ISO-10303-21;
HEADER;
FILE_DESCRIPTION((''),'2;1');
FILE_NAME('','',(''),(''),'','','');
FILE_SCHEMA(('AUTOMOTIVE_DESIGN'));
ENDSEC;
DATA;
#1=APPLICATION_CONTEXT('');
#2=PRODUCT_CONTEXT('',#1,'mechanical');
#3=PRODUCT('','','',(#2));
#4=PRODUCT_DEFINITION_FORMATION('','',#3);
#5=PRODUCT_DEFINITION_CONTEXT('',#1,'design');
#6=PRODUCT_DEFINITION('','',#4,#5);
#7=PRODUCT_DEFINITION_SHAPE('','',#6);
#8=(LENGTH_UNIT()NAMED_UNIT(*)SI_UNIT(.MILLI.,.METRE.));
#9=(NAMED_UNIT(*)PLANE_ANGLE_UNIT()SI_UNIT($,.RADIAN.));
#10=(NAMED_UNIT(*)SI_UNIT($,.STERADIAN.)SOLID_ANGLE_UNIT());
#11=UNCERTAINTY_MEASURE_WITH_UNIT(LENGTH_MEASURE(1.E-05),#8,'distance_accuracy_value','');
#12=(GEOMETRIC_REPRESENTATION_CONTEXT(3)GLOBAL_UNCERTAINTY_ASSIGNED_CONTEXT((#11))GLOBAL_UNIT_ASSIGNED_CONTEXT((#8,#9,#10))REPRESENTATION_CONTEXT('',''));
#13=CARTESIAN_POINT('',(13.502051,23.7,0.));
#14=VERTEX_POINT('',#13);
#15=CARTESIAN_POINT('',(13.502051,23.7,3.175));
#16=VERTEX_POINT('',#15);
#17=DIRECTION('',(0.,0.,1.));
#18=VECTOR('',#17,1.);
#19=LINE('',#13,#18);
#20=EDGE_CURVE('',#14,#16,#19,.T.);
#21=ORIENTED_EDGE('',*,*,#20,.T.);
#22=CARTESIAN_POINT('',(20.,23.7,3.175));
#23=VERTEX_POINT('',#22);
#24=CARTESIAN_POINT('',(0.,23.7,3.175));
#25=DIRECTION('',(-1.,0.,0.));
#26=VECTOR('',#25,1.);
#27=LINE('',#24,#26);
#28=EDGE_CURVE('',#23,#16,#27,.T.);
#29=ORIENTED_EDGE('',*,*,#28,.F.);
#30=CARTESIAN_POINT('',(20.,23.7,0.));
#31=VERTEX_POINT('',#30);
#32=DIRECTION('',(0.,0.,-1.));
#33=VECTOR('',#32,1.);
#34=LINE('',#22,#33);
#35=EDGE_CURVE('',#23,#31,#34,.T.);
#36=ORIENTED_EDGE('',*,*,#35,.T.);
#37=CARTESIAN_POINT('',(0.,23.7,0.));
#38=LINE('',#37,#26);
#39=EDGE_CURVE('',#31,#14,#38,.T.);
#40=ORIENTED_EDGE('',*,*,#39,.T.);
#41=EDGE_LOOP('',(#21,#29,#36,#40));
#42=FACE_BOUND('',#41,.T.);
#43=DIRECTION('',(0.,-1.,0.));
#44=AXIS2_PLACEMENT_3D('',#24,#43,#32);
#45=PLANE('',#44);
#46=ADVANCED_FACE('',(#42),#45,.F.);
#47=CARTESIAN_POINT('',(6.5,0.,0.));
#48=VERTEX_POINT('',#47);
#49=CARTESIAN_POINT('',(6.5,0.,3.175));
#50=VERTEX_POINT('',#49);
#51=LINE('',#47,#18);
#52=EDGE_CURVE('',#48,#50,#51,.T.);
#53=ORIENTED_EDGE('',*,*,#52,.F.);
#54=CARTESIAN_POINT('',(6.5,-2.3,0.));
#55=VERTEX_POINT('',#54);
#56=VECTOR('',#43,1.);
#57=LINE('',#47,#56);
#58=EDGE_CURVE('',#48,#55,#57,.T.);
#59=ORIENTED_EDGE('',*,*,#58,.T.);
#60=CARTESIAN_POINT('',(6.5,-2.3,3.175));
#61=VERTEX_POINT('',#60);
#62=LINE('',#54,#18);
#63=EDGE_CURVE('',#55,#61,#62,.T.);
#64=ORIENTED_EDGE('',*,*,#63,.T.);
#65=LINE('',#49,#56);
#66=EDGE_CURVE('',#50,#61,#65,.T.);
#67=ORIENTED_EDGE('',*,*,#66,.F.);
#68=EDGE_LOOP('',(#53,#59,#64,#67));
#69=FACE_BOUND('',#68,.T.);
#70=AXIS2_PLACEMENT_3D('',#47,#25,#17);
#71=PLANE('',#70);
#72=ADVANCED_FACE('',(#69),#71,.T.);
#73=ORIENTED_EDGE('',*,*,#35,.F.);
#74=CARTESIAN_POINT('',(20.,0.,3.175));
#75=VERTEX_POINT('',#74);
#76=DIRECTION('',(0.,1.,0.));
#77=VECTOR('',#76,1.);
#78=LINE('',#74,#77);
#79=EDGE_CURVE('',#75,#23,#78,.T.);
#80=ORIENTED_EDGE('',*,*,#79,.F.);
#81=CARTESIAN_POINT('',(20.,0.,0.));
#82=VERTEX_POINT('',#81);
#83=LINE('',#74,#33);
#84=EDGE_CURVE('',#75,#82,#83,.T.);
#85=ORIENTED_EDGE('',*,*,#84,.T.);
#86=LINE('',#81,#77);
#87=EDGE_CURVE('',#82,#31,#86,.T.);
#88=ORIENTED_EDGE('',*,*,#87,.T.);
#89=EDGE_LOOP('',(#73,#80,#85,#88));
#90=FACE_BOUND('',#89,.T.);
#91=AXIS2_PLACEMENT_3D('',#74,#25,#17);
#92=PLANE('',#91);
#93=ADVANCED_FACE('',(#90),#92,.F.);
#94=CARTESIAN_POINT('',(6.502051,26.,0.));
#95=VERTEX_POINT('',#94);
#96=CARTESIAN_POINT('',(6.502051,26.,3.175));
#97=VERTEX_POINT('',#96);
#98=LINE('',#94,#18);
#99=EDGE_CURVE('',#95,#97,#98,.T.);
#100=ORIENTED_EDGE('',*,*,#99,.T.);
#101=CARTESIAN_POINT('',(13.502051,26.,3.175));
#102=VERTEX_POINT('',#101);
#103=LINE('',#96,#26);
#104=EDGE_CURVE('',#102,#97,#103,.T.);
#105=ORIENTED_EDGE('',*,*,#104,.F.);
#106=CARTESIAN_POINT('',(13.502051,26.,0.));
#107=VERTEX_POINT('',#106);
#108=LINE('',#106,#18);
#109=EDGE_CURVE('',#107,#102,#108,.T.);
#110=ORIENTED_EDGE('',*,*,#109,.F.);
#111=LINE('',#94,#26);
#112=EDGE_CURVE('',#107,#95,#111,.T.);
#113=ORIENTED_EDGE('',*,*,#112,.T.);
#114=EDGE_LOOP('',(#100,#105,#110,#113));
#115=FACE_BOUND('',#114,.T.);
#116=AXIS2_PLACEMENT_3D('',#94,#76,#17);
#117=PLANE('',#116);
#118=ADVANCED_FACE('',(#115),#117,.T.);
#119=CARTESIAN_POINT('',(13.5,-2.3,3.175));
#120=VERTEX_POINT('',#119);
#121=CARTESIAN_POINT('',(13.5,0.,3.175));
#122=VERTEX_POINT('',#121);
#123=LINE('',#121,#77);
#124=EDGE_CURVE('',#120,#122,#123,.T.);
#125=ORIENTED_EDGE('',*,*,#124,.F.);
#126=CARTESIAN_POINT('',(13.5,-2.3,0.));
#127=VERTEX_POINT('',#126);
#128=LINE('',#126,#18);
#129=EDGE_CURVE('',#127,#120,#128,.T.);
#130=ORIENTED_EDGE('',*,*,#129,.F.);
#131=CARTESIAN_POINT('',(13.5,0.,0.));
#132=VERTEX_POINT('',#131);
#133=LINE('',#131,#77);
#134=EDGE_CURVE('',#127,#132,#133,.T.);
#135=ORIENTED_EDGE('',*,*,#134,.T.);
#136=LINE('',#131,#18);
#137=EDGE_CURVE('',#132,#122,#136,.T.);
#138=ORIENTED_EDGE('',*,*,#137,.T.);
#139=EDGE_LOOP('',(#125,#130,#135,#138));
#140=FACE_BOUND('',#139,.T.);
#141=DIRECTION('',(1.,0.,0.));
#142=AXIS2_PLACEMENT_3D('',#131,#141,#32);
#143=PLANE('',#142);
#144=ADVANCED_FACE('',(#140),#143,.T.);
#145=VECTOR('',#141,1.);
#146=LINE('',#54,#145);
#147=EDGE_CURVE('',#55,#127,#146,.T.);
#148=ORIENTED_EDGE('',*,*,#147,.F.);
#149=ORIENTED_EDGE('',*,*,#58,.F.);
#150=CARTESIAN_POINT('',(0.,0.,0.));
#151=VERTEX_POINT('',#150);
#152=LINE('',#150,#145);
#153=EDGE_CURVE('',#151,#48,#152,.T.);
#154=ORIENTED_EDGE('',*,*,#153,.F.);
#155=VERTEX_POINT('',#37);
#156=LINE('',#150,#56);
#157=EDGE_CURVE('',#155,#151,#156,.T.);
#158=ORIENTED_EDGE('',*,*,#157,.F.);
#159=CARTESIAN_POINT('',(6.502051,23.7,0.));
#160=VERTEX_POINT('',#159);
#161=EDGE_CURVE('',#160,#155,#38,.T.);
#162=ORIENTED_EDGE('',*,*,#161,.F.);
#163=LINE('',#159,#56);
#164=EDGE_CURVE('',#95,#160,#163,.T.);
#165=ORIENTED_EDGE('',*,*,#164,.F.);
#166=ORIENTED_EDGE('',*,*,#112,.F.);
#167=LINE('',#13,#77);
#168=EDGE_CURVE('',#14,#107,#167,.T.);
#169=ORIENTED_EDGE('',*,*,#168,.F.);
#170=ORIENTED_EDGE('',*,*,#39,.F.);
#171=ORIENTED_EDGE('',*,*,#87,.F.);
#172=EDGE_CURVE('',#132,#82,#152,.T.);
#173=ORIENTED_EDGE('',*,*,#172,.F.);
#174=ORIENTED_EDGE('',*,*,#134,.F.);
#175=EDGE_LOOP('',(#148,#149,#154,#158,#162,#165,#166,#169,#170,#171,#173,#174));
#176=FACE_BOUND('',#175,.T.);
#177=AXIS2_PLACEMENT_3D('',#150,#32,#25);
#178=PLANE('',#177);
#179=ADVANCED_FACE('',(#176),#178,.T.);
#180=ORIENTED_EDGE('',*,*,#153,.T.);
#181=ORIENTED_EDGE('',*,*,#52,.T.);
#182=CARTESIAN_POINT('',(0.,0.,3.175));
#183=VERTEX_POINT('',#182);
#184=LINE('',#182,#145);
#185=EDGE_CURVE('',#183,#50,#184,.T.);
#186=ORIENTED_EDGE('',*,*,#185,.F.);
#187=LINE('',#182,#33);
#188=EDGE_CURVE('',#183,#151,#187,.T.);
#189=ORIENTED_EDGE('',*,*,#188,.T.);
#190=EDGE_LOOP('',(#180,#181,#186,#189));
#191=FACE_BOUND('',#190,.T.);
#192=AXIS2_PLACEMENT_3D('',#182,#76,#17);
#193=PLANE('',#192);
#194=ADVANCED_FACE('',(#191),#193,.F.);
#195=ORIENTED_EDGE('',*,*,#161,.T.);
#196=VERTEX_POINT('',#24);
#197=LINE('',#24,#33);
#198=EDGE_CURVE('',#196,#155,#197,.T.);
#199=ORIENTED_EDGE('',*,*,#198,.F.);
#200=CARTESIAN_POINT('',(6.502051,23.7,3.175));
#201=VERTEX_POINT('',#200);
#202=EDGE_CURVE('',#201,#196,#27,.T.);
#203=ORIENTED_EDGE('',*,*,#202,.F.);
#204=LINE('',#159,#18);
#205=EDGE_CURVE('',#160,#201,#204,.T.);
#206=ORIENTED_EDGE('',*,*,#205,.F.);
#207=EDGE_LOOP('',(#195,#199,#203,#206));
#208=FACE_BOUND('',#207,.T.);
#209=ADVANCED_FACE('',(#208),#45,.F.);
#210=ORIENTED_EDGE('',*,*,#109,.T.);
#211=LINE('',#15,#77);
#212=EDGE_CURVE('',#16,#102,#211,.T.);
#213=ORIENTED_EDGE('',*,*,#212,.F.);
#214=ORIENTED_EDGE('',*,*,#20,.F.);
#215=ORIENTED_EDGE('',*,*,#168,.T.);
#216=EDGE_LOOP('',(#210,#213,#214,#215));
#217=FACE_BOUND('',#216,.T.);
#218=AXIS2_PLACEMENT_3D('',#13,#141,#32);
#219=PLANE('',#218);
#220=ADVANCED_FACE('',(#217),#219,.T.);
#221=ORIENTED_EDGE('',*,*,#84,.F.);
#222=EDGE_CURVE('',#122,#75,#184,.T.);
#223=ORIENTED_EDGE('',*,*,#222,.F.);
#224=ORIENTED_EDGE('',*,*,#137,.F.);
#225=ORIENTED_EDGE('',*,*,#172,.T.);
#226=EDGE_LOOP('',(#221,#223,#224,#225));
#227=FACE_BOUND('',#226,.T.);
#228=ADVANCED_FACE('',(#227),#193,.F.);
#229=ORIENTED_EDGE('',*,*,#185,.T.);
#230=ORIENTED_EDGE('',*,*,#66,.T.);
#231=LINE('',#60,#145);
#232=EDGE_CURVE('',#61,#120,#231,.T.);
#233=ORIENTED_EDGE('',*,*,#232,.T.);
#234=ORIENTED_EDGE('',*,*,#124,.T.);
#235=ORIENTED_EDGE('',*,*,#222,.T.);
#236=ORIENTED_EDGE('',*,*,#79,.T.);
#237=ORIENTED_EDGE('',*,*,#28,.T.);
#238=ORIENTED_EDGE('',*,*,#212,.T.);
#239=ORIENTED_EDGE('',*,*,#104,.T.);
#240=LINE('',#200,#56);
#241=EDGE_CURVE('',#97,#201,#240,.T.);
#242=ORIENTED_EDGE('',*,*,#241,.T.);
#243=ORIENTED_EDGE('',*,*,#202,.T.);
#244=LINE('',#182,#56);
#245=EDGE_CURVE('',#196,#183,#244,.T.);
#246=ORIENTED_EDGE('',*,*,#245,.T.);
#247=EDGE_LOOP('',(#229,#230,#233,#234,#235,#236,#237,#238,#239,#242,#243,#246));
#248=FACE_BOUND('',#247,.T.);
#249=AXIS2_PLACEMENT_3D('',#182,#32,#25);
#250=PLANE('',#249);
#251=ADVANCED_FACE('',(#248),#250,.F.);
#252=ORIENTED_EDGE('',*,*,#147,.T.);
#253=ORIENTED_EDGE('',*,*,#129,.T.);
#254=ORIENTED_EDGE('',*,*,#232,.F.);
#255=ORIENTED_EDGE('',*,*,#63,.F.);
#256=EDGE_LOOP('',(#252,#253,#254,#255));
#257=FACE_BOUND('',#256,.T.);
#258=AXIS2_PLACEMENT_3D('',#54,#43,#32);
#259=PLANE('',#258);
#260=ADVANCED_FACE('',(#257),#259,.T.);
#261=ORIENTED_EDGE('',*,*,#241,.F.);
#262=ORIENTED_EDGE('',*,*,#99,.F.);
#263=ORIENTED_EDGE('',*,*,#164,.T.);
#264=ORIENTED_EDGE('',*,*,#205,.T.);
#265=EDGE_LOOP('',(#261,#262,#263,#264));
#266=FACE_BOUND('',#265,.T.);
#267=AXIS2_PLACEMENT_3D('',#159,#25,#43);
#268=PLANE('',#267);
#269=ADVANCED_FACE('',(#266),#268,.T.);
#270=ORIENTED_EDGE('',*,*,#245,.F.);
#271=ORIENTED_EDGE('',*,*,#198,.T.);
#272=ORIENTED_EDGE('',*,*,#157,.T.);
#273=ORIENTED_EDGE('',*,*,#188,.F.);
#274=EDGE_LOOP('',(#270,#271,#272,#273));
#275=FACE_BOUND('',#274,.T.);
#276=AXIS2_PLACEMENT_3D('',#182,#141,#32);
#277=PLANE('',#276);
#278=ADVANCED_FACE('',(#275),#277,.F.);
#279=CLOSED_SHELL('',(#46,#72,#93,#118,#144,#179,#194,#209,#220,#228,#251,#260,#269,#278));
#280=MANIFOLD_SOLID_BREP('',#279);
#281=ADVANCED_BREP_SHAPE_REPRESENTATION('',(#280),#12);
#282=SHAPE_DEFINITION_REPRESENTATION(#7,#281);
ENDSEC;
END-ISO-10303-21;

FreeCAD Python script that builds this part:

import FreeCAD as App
import Part
import Sketcher
Q = App.Units.Quantity

doc = App.newDocument("Part")
params = doc.addObject("Spreadsheet::Sheet", "Params")
for row, (alias, value) in enumerate([
    ("sketch1_width", "20 mm"),
    ("sketch1_height", "23.7 mm"),
    ("pad1_length", "3.175 mm"),
    ("sketch2_width", "7 mm"),
    ("sketch2_height", "2.3 mm"),
    ("pad2_length", "3.175 mm"),
], start=1):
    params.set(f"A{row}", alias)
    params.set(f"B{row}", "=" + value)
    params.setAlias(f"B{row}", alias)

body = doc.addObject("PartDesign::Body", "Body")

# Sketch on XY plane
sketch1 = body.newObject("Sketcher::SketchObject", "Sketch")
sketch1.AttachmentSupport = (doc.getObject("XY_Plane"), [""])
sketch1.MapMode = "FlatFace"
sketch1.addGeometry(Part.LineSegment(App.Vector(0, 24, 0), App.Vector(0, 0, 0)), False)
sketch1.addGeometry(Part.LineSegment(App.Vector(0, 0, 0), App.Vector(20, 0, 0)), False)
sketch1.addGeometry(Part.LineSegment(App.Vector(20, 0, 0), App.Vector(20, 24, 0)), False)
sketch1.addGeometry(Part.LineSegment(App.Vector(20, 24, 0), App.Vector(0, 24, 0)), False)
sketch1.addConstraint(Sketcher.Constraint("Coincident", 0, 2, 1, 1))
sketch1.addConstraint(Sketcher.Constraint("Coincident", 1, 2, 2, 1))
sketch1.addConstraint(Sketcher.Constraint("Coincident", 2, 2, 3, 1))
sketch1.addConstraint(Sketcher.Constraint("Coincident", 3, 2, 0, 1))
sketch1.addConstraint(Sketcher.Constraint("Vertical", 0))
sketch1.addConstraint(Sketcher.Constraint("Horizontal", 1))
sketch1.addConstraint(Sketcher.Constraint("Vertical", 2))
sketch1.addConstraint(Sketcher.Constraint("Horizontal", 3))
sketch1.addConstraint(Sketcher.Constraint("Coincident", 0, 2, -1, 1))
sketch1.addConstraint(Sketcher.Constraint("DistanceX", 1, 1, 1, 2, Q("20 mm")))
sketch1.addConstraint(Sketcher.Constraint("DistanceY", 0, 2, 0, 1, Q("23.7 mm")))
sketch1.setExpression("Constraints[9]", "Params.sketch1_width")
sketch1.setExpression("Constraints[10]", "Params.sketch1_height")
pad1 = body.newObject("PartDesign::Pad", "Pad")
pad1.Profile = sketch1
pad1.setExpression("Length", "Params.pad1_length")

# Sketch on XY plane
sketch2 = body.newObject("Sketcher::SketchObject", "Sketch001")
sketch2.AttachmentSupport = (doc.getObject("XY_Plane"), [""])
sketch2.MapMode = "FlatFace"
sketch2.AttachmentOffset = App.Placement(App.Vector(0, 0, 3.175), App.Rotation())
sketch2.addGeometry(Part.LineSegment(App.Vector(6.5, 26, 0), App.Vector(6.5, 23.7, 0)), False)
sketch2.addGeometry(Part.LineSegment(App.Vector(6.5, 23.7, 0), App.Vector(13.5, 23.7, 0)), False)
sketch2.addGeometry(Part.LineSegment(App.Vector(13.5, 23.7, 0), App.Vector(13.5, 26, 0)), False)
sketch2.addGeometry(Part.LineSegment(App.Vector(13.5, 26, 0), App.Vector(6.5, 26, 0)), False)
sketch2.addGeometry(Part.LineSegment(App.Vector(6.5, 0, 0), App.Vector(6.5, -2.3, 0)), False)
sketch2.addGeometry(Part.LineSegment(App.Vector(6.5, -2.3, 0), App.Vector(13.5, -2.3, 0)), False)
sketch2.addGeometry(Part.LineSegment(App.Vector(13.5, -2.3, 0), App.Vector(13.5, 0, 0)), False)
sketch2.addGeometry(Part.LineSegment(App.Vector(13.5, 0, 0), App.Vector(6.5, 0, 0)), False)
sketch2.addConstraint(Sketcher.Constraint("Coincident", 0, 2, 1, 1))
sketch2.addConstraint(Sketcher.Constraint("Coincident", 1, 2, 2, 1))
sketch2.addConstraint(Sketcher.Constraint("Coincident", 2, 2, 3, 1))
sketch2.addConstraint(Sketcher.Constraint("Coincident", 3, 2, 0, 1))
sketch2.addConstraint(Sketcher.Constraint("Coincident", 4, 2, 5, 1))
sketch2.addConstraint(Sketcher.Constraint("Coincident", 5, 2, 6, 1))
sketch2.addConstraint(Sketcher.Constraint("Coincident", 6, 2, 7, 1))
sketch2.addConstraint(Sketcher.Constraint("Coincident", 7, 2, 4, 1))
sketch2.addConstraint(Sketcher.Constraint("Vertical", 0))
sketch2.addConstraint(Sketcher.Constraint("Horizontal", 1))
sketch2.addConstraint(Sketcher.Constraint("Vertical", 2))
sketch2.addConstraint(Sketcher.Constraint("Horizontal", 3))
sketch2.addConstraint(Sketcher.Constraint("Vertical", 4))
sketch2.addConstraint(Sketcher.Constraint("Horizontal", 5))
sketch2.addConstraint(Sketcher.Constraint("Vertical", 6))
sketch2.addConstraint(Sketcher.Constraint("Horizontal", 7))
sketch2.addConstraint(Sketcher.Constraint("PointOnObject", 6, 2, -1))
sketch2.addConstraint(Sketcher.Constraint("Equal", 3, 5))
sketch2.addConstraint(Sketcher.Constraint("Equal", 2, 4))
sketch2.addConstraint(Sketcher.Constraint("DistanceX", 1, 1, 1, 2, Q("7 mm")))
sketch2.addConstraint(Sketcher.Constraint("DistanceY", 0, 2, 0, 1, Q("2.3 mm")))
sketch2.addConstraint(Sketcher.Constraint("DistanceY", -1, 1, 2, 2, Q("26 mm")))
sketch2.addConstraint(Sketcher.Constraint("DistanceX", -1, 1, 4, 2, Q("6.5 mm")))
sketch2.addConstraint(Sketcher.Constraint("DistanceX", -1, 1, 0, 2, Q("6.502051 mm")))
sketch2.setExpression("Constraints[19]", "Params.sketch2_width")
sketch2.setExpression("Constraints[20]", "Params.sketch2_height")
pad2 = body.newObject("PartDesign::Pad", "Pad001")
pad2.Profile = sketch2
pad2.setExpression("Length", "Params.pad2_length")
pad2.Reversed = True

doc.recompute()
